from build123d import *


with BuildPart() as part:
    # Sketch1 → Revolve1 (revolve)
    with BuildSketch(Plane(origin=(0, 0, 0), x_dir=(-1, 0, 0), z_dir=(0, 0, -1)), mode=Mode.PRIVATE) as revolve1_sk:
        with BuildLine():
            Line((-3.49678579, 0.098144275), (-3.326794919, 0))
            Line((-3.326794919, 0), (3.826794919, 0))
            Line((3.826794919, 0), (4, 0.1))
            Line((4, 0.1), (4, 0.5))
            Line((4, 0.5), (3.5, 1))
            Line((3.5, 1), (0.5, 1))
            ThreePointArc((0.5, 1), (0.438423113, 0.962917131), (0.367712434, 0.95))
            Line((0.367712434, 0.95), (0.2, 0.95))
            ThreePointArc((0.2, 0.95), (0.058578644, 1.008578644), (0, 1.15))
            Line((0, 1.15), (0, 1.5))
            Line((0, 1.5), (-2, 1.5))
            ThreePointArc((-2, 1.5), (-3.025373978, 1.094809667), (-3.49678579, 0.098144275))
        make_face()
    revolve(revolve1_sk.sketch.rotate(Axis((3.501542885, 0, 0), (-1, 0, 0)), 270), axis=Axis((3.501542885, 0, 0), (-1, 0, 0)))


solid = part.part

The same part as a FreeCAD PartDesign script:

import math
import FreeCAD as App
import Part
import Sketcher

V = App.Vector
Q = App.Units.Quantity

doc = App.newDocument("Part")
body = doc.addObject("PartDesign::Body", "Body")

# Sketch on XY plane
sketch1 = body.newObject("Sketcher::SketchObject", "Sketch")
sketch1.AttachmentSupport = (doc.getObject("XY_Plane"), [""])
sketch1.MapMode = "FlatFace"
sketch1.addGeometry([
    Part.LineSegment(V(3.5, 0.1, 0), V(3.33, 0, 0)),  # 0
    Part.LineSegment(V(3.33, 0, 0), V(-3.83, 0, 0)),  # 1
    Part.LineSegment(V(-3.83, 0, 0), V(-4, 0.1, 0)),  # 2
    Part.LineSegment(V(-4, 0.1, 0), V(-4, 0.5, 0)),  # 3
    Part.LineSegment(V(-4, 0.5, 0), V(-3.5, 1, 0)),  # 4
    Part.LineSegment(V(-3.5, 1, 0), V(-0.5, 1, 0)),  # 5
    Part.ArcOfCircle(Part.Circle(V(-0.37, 1.15, 0), V(0, 0, 1), 0.2), math.radians(-131), math.radians(-90)),  # 6
    Part.LineSegment(V(-0.37, 0.95, 0), V(-0.2, 0.95, 0)),  # 7
    Part.ArcOfCircle(Part.Circle(V(-0.2, 1.15, 0), V(0, 0, 1), 0.2), math.radians(-90), math.radians(0)),  # 8
    Part.LineSegment(V(0, 1.15, 0), V(0, 1.5, 0)),  # 9
    Part.LineSegment(V(0, 1.5, 0), V(2, 1.5, 0)),  # 10
    Part.ArcOfCircle(Part.Circle(V(2, 0, 0), V(0, 0, 1), 1.5), math.radians(4), math.radians(90)),  # 11
], False)
sketch1.addConstraint([
    Sketcher.Constraint("Coincident", 0, 2, 1, 1),
    Sketcher.Constraint("Coincident", 1, 2, 2, 1),
    Sketcher.Constraint("Coincident", 2, 2, 3, 1),
    Sketcher.Constraint("Coincident", 3, 2, 4, 1),
    Sketcher.Constraint("Coincident", 4, 2, 5, 1),
    Sketcher.Constraint("Coincident", 5, 2, 6, 1),
    Sketcher.Constraint("Tangent", 6, 2, 7, 1),
    Sketcher.Constraint("Tangent", 7, 2, 8, 1),
    Sketcher.Constraint("Tangent", 8, 2, 9, 1),
    Sketcher.Constraint("Coincident", 9, 2, 10, 1),
    Sketcher.Constraint("Tangent", 10, 2, 11, 2),
    Sketcher.Constraint("Coincident", 11, 1, 0, 1),
    Sketcher.Constraint("Horizontal", 1),
    Sketcher.Constraint("Vertical", 3),
    Sketcher.Constraint("Horizontal", 5),
    Sketcher.Constraint("Horizontal", 7),
    Sketcher.Constraint("Vertical", 9),
    Sketcher.Constraint("Horizontal", 10),
    Sketcher.Constraint("Equal", 6, 8),
    Sketcher.Constraint("PointOnObject", 11, 3, -1),
    Sketcher.Constraint("PointOnObject", 0, 2, -1),
    Sketcher.Constraint("PointOnObject", 8, 2, -2),
    Sketcher.Constraint("Radius", 6, 0.2),
    Sketcher.Constraint("Radius", 11, 1.5),
    Sketcher.Constraint("DistanceX", 5, 1, 5, 2, 3.0),
    Sketcher.Constraint("DistanceX", 10, 1, 10, 2, 2.0),
    Sketcher.Constraint("Angle", 0, Q("-150 deg")),
    Sketcher.Constraint("Angle", 2, Q("150 deg")),
    Sketcher.Constraint("Angle", 4, Q("45 deg")),
    Sketcher.Constraint("DistanceY", 3, 1, 3, 2, 0.4),
    Sketcher.Constraint("DistanceX", 2, 2, -1, 1, 4.0),
    Sketcher.Constraint("DistanceY", -1, 1, 4, 2, 1.0),
    Sketcher.Constraint("Distance", 2, 0.2),
    Sketcher.Constraint("DistanceY", 9, 1, 9, 2, 0.35),
    Sketcher.Constraint("DistanceX", 1, 2, 1, 1, 7.15359),
])
revolution = body.newObject("PartDesign::Revolution", "Revolution")
revolution.Profile = sketch1
revolution.ReferenceAxis = (sketch1, ["H_Axis"])
revolution.Angle = 360

doc.recompute()
